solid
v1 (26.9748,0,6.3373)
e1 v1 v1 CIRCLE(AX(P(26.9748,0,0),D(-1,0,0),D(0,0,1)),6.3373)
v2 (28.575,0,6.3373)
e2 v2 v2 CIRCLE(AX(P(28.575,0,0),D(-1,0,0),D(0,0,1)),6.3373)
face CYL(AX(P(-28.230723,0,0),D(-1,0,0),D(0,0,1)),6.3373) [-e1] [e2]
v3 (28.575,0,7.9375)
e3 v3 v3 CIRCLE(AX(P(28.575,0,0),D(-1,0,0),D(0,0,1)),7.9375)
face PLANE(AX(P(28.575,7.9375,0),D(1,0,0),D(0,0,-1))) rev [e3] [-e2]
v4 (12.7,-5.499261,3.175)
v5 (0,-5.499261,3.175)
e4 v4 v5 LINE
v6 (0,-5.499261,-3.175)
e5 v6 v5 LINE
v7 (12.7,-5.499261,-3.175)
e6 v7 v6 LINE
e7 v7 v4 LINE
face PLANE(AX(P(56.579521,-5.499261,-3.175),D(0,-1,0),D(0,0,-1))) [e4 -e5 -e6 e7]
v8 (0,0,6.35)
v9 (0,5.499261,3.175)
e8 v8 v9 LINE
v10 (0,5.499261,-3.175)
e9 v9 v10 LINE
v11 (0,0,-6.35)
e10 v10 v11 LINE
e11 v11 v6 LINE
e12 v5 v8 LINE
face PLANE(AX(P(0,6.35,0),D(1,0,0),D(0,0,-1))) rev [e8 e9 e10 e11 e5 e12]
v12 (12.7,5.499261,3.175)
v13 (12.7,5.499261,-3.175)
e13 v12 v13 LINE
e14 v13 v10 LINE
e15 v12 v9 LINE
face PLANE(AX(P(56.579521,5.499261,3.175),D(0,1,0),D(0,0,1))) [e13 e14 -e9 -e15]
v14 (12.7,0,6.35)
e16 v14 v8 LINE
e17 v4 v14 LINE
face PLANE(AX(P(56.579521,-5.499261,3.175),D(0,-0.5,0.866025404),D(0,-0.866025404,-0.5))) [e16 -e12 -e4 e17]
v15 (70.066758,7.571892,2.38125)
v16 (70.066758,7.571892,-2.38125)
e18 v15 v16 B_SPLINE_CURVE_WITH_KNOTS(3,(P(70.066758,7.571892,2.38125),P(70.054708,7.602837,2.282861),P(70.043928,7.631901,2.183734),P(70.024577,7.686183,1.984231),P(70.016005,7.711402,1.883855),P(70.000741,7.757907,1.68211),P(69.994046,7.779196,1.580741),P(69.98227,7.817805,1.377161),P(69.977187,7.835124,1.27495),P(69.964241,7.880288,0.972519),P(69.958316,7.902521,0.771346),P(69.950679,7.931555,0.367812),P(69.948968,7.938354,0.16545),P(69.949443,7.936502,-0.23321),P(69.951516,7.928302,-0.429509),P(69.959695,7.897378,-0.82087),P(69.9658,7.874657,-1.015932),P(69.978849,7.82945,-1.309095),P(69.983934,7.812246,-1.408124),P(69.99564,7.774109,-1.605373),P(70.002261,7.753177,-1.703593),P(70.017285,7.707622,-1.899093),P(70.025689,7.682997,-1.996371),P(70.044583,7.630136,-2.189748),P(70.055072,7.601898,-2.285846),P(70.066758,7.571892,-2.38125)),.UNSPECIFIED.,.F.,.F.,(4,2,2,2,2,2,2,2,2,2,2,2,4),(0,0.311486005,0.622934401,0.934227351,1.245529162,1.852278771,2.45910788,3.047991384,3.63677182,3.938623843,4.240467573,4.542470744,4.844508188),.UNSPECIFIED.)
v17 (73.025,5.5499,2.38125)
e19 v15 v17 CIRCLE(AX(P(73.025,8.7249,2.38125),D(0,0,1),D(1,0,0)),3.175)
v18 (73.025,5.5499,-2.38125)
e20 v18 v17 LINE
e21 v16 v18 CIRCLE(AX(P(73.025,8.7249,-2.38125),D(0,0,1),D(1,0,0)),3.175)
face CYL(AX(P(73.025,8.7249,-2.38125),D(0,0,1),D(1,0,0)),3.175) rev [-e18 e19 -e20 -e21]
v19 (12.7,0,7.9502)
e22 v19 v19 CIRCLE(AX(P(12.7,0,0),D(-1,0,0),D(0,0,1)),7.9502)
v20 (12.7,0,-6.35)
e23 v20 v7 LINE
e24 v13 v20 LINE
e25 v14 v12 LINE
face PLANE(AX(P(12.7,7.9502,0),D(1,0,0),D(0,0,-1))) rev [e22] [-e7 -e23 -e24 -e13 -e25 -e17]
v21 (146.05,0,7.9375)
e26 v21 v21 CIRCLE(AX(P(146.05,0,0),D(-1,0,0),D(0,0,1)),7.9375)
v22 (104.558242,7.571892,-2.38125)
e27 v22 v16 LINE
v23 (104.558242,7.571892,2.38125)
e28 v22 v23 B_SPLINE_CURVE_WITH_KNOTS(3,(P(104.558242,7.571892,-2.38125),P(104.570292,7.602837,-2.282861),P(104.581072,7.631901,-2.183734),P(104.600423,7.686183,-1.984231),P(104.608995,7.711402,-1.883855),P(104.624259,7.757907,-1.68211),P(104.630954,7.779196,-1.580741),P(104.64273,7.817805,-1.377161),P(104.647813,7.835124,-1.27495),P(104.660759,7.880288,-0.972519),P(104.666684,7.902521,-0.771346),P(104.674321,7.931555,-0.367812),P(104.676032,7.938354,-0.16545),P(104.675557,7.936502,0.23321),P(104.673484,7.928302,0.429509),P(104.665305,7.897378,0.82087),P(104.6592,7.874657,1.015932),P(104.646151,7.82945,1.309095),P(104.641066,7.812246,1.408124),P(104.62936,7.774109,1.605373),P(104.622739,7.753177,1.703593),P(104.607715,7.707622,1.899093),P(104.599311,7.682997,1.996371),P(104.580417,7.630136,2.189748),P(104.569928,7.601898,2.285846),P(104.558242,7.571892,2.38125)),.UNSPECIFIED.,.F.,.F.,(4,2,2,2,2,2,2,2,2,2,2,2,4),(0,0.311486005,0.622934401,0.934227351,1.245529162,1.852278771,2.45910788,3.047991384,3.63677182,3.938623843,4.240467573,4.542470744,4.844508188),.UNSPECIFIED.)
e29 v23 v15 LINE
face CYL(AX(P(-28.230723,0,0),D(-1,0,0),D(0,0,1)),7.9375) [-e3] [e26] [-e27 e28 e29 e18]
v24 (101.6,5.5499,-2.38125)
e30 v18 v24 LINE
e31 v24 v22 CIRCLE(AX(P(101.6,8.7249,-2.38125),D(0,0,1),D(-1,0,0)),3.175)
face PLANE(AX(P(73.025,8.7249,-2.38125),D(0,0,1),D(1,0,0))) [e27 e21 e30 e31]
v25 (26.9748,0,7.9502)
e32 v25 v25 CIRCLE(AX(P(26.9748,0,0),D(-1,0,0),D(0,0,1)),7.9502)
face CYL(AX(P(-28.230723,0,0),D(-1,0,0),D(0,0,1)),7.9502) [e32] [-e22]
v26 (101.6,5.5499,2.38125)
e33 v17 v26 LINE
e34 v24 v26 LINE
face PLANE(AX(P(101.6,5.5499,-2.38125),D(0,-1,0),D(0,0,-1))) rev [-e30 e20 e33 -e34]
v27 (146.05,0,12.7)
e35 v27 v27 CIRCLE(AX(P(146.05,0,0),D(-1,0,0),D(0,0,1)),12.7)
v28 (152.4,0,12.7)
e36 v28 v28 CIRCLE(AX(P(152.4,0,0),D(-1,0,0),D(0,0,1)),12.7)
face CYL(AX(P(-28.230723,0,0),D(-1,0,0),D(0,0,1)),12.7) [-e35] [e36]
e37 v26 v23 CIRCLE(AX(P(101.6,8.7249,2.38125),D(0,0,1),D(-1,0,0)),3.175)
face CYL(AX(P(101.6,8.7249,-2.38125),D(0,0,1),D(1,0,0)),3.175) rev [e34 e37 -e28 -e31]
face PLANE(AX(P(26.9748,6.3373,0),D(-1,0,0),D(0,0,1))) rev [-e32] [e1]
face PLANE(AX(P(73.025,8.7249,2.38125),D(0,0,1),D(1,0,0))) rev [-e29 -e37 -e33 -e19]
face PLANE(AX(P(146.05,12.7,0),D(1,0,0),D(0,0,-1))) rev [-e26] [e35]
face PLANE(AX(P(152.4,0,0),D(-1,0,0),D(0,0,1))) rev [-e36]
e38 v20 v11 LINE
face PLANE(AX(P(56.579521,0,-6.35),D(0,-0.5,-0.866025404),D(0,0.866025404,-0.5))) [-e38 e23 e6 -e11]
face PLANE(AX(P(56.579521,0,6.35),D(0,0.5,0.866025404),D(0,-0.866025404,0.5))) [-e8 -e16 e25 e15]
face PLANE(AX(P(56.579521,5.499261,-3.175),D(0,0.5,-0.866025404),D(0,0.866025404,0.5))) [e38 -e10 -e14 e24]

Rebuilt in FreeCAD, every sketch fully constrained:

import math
import FreeCAD as App
import Part
import Sketcher
from FreeCAD import Vector
Q = App.Units.Quantity


def add_polygon(sketch, points):
    """Adds a closed chain of lines whose ends are joined by coincident constraints."""
    first, n = sketch.GeometryCount, len(points)
    for a, b in zip(points, points[1:] + points[:1]):
        sketch.addGeometry(Part.LineSegment(App.Vector(*a, 0), App.Vector(*b, 0)), False)
    for i in range(n):
        sketch.addConstraint(Sketcher.Constraint("Coincident", first + i, 2, first + (i + 1) % n, 1))

doc = App.newDocument("Part")
body = doc.addObject("PartDesign::Body", "Body")

# Sketch on XY plane
sketch1 = body.newObject("Sketcher::SketchObject", "Sketch")
sketch1.AttachmentSupport = (doc.getObject("XY_Plane"), [""])
sketch1.MapMode = "FlatFace"
add_polygon(sketch1, [(0, 0), (152.4, 0), (152.4, 12.7), (146.05, 12.7), (146.05, 7.9375), (28.575, 7.9375), (28.575, 6.3373), (26.9748, 6.3373), (26.9748, 7.9502), (12.7, 7.9502), (12.7, 6.35), (0, 6.35)])  # lines 0-11
sketch1.addConstraint(Sketcher.Constraint("Horizontal", 0))
sketch1.addConstraint(Sketcher.Constraint("Vertical", 1))
sketch1.addConstraint(Sketcher.Constraint("Horizontal", 2))
sketch1.addConstraint(Sketcher.Constraint("Vertical", 3))
sketch1.addConstraint(Sketcher.Constraint("Horizontal", 4))
sketch1.addConstraint(Sketcher.Constraint("Vertical", 5))
sketch1.addConstraint(Sketcher.Constraint("Horizontal", 6))
sketch1.addConstraint(Sketcher.Constraint("Vertical", 7))
sketch1.addConstraint(Sketcher.Constraint("Horizontal", 8))
sketch1.addConstraint(Sketcher.Constraint("Vertical", 9))
sketch1.addConstraint(Sketcher.Constraint("Horizontal", 10))
sketch1.addConstraint(Sketcher.Constraint("Vertical", 11))
sketch1.addConstraint(Sketcher.Constraint("Coincident", 11, 2, -1, 1))
sketch1.addConstraint(Sketcher.Constraint("Equal", 10, 1))
sketch1.addConstraint(Sketcher.Constraint("Equal", 6, 5))
sketch1.addConstraint(Sketcher.Constraint("Equal", 5, 9))
sketch1.addConstraint(Sketcher.Constraint("Equal", 2, 11))
sketch1.addConstraint(Sketcher.Constraint("DistanceX", 0, 1, 0, 2, Q("6 in")))
sketch1.addConstraint(Sketcher.Constraint("DistanceX", 10, 2, 10, 1, Q("0.5 in")))
sketch1.addConstraint(Sketcher.Constraint("DistanceX", 2, 2, 2, 1, Q("0.25 in")))
sketch1.addConstraint(Sketcher.Constraint("DistanceX", 4, 2, 4, 1, Q("4.625 in")))
sketch1.addConstraint(Sketcher.Constraint("DistanceX", 6, 2, 6, 1, Q("0.063 in")))
sketch1.addConstraint(Sketcher.Constraint("DistanceY", 3, 2, 3, 1, Q("0.1875 in")))
revolution = body.newObject("PartDesign::Revolution", "Revolution")
revolution.Profile = sketch1
revolution.ReferenceAxis = (sketch1, ["H_Axis"])
revolution.Angle = 360

# Sketch on XY plane
sketch2 = body.newObject("Sketcher::SketchObject", "Sketch001")
sketch2.AttachmentSupport = (doc.getObject("XY_Plane"), [""])
sketch2.MapMode = "FlatFace"
sketch2.addGeometry(Part.LineSegment(Vector(104.775, 14.2875, 0), Vector(69.85, 14.2875, 0)), False)
sketch2.addGeometry(Part.LineSegment(Vector(69.85, 14.2875, 0), Vector(69.85, 8.7249, 0)), False)
sketch2.addGeometry(Part.ArcOfCircle(Part.Circle(Vector(73.025, 8.7249, 0), Vector(0, 0, 1), 3.175), math.radians(-180), math.radians(-90)), False)
sketch2.addGeometry(Part.LineSegment(Vector(73.025, 5.5499, 0), Vector(101.6, 5.5499, 0)), False)
sketch2.addGeometry(Part.ArcOfCircle(Part.Circle(Vector(101.6, 8.7249, 0), Vector(0, 0, 1), 3.175), math.radians(-90), math.radians(0)), False)
sketch2.addGeometry(Part.LineSegment(Vector(104.775, 8.7249, 0), Vector(104.775, 14.2875, 0)), False)
sketch2.addConstraint(Sketcher.Constraint("Coincident", 0, 2, 1, 1))
sketch2.addConstraint(Sketcher.Constraint("Tangent", 1, 2, 2, 1))
sketch2.addConstraint(Sketcher.Constraint("Tangent", 2, 2, 3, 1))
sketch2.addConstraint(Sketcher.Constraint("Tangent", 3, 2, 4, 1))
sketch2.addConstraint(Sketcher.Constraint("Tangent", 4, 2, 5, 1))
sketch2.addConstraint(Sketcher.Constraint("Coincident", 5, 2, 0, 1))
sketch2.addConstraint(Sketcher.Constraint("Horizontal", 0))
sketch2.addConstraint(Sketcher.Constraint("Vertical", 1))
sketch2.addConstraint(Sketcher.Constraint("Horizontal", 3))
sketch2.addConstraint(Sketcher.Constraint("Vertical", 5))
sketch2.addConstraint(Sketcher.Constraint("Equal", 2, 4))
sketch2.addConstraint(Sketcher.Constraint("DistanceX", -1, 1, 4, 3, Q("4 in")))
sketch2.addConstraint(Sketcher.Constraint("Radius", 2, Q("0.125 in")))
sketch2.addConstraint(Sketcher.Constraint("DistanceX", 0, 2, 0, 1, Q("1.375 in")))
sketch2.addConstraint(Sketcher.Constraint("DistanceY", 1, 2, 1, 1, Q("0.219 in")))
sketch2.addConstraint(Sketcher.Constraint("DistanceY", -1, 1, 0, 2, Q("0.5625 in")))
pocket1 = body.newObject("PartDesign::Pocket", "Pocket")
pocket1.Profile = sketch2
pocket1.Length = Q("0.1875 in")
pocket1.Midplane = True

# Sketch on YZ plane
sketch3 = body.newObject("Sketcher::SketchObject", "Sketch002")
sketch3.AttachmentSupport = (doc.getObject("YZ_Plane"), [""])
sketch3.MapMode = "FlatFace"
add_polygon(sketch3, [(29.358, -29.358), (-29.358, -29.358), (-29.358, 29.358), (29.358, 29.358)])  # lines 0-3
add_polygon(sketch3, [(5.499261, -3.175), (5.499261, 3.175), (0, 6.35), (-5.499261, 3.175), (-5.499261, -3.175), (0, -6.35)])  # lines 4-9
sketch3.addConstraint(Sketcher.Constraint("Horizontal", 0))
sketch3.addConstraint(Sketcher.Constraint("Vertical", 1))
sketch3.addConstraint(Sketcher.Constraint("Horizontal", 2))
sketch3.addConstraint(Sketcher.Constraint("Vertical", 3))
sketch3.addConstraint(Sketcher.Constraint("Vertical", 4))
sketch3.addConstraint(Sketcher.Constraint("Vertical", 7))
sketch3.addConstraint(Sketcher.Constraint("Symmetric", 0, 2, 2, 2, -1, 1))
sketch3.addConstraint(Sketcher.Constraint("Symmetric", 4, 2, 7, 2, -1, 1))
sketch3.addConstraint(Sketcher.Constraint("Symmetric", 5, 2, 8, 2, -1, 1))
sketch3.addConstraint(Sketcher.Constraint("PointOnObject", 5, 2, -2))
sketch3.addConstraint(Sketcher.Constraint("Parallel", 6, 9))
sketch3.addConstraint(Sketcher.Constraint("Horizontal", 4, 2, 6, 2))
sketch3.addConstraint(Sketcher.Constraint("Equal", 2, 1))
sketch3.addConstraint(Sketcher.Constraint("Angle", 5, Q("150 deg")))
sketch3.addConstraint(Sketcher.Constraint("DistanceY", 4, 1, 4, 2, Q("0.25 in")))
sketch3.addConstraint(Sketcher.Constraint("DistanceY", 8, 2, 5, 2, Q("0.5 in")))
sketch3.addConstraint(Sketcher.Constraint("DistanceX", 0, 2, 0, 1, Q("58.716 mm")))
pocket2 = body.newObject("PartDesign::Pocket", "Pocket001")
pocket2.Profile = sketch3
pocket2.Length = Q("0.5 in")
pocket2.Reversed = True

doc.recompute()
